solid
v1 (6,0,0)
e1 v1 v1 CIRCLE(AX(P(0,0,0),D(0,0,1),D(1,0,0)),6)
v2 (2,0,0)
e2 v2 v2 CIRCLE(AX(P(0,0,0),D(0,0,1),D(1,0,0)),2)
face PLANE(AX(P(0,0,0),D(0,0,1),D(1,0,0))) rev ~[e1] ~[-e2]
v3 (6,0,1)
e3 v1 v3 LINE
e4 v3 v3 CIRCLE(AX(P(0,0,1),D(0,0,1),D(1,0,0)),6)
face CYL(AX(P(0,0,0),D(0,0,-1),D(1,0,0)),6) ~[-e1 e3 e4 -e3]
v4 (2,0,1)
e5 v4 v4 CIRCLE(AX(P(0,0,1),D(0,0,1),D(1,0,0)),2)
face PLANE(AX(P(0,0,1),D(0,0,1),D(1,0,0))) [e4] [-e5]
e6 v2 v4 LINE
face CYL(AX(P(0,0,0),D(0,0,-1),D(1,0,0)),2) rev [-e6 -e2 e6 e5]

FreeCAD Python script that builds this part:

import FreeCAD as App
import Part
import Sketcher
Q = App.Units.Quantity

doc = App.newDocument("Part")
body = doc.addObject("PartDesign::Body", "Body")

# Sketch on XY plane
sketch1 = body.newObject("Sketcher::SketchObject", "Sketch")
sketch1.AttachmentSupport = (doc.getObject("XY_Plane"), [""])
sketch1.MapMode = "FlatFace"
sketch1.addGeometry([
    Part.Circle(App.Vector(0, 0, 0), App.Vector(0, 0, 1), 6),
    Part.Circle(App.Vector(0, 0, 0), App.Vector(0, 0, 1), 2),
], False)
sketch1.addConstraint([
    Sketcher.Constraint("Coincident", 0, 3, -1, 1),
    Sketcher.Constraint("Coincident", 1, 3, -1, 1),
    Sketcher.Constraint("Diameter", 0, Q("12 mm")),
    Sketcher.Constraint("Diameter", 1, Q("4 mm")),
])
pad1 = body.newObject("PartDesign::Pad", "Pad")
pad1.Profile = sketch1
pad1.Length = 1

doc.recompute()
